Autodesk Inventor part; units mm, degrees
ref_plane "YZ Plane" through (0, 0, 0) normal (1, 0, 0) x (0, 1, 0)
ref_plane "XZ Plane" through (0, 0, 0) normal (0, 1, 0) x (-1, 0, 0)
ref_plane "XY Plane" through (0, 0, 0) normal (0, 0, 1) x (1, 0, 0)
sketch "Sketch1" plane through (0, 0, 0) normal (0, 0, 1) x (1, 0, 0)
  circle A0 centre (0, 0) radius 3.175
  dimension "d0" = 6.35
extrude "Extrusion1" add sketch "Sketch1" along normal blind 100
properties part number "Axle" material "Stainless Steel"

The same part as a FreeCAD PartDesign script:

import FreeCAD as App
import Part
import Sketcher
from FreeCAD import Vector
Q = App.Units.Quantity

doc = App.newDocument("Part")
body = doc.addObject("PartDesign::Body", "Body")

# Sketch on XY plane
sketch1 = body.newObject("Sketcher::SketchObject", "Sketch")
sketch1.AttachmentSupport = (doc.getObject("XY_Plane"), [""])
sketch1.MapMode = "FlatFace"
sketch1.addGeometry(Part.Circle(Vector(0, 0, 0), Vector(0, 0, 1), 3.2), False)
sketch1.addConstraint(Sketcher.Constraint("Coincident", 0, 3, -1, 1))
sketch1.addConstraint(Sketcher.Constraint("Diameter", 0, Q("0.25 in")))
pad1 = body.newObject("PartDesign::Pad", "Pad")
pad1.Profile = sketch1
pad1.Length = Q("3.9370079 in")

doc.recompute()
